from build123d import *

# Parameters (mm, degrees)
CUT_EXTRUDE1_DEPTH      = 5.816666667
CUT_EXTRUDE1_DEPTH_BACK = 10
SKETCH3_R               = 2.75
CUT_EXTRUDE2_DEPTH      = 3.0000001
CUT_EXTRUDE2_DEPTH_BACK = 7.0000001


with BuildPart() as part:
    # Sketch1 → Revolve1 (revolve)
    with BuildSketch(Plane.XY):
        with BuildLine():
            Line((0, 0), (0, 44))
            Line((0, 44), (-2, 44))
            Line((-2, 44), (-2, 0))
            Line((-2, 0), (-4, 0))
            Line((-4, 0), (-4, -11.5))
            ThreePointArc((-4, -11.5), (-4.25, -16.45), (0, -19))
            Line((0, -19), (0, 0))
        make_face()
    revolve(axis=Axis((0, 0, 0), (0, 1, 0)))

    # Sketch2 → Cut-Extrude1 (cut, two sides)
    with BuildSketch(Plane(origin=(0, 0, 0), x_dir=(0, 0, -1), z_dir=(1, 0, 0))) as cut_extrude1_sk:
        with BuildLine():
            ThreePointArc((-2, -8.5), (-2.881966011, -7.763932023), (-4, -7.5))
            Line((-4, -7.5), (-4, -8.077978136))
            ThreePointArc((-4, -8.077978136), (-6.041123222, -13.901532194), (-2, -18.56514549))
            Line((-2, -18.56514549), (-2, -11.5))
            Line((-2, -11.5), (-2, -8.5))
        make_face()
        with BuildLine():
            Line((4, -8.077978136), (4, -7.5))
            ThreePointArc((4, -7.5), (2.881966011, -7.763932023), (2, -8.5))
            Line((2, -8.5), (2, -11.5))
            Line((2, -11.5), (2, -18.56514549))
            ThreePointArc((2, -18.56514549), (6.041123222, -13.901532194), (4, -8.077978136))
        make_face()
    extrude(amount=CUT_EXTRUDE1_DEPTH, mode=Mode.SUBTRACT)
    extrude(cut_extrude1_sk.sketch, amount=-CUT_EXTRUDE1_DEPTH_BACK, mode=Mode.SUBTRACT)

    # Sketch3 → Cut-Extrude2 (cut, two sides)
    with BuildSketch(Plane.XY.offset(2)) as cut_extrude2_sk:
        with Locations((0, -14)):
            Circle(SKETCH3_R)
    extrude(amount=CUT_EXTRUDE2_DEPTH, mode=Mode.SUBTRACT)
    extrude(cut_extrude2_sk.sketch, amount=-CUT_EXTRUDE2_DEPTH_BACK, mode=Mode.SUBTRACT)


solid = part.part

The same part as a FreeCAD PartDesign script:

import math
import FreeCAD as App
import Part
import Sketcher

V = App.Vector
Q = App.Units.Quantity

doc = App.newDocument("Part")
body = doc.addObject("PartDesign::Body", "Body")

# Sketch on XY plane
sketch1 = body.newObject("Sketcher::SketchObject", "Sketch")
sketch1.AttachmentSupport = (doc.getObject("XY_Plane"), [""])
sketch1.MapMode = "FlatFace"
sketch1.addGeometry([
    Part.LineSegment(V(0, 44, 0), V(-2, 44, 0)),  # 0
    Part.LineSegment(V(-2, 44, 0), V(-2, 0, 0)),  # 1
    Part.LineSegment(V(-2, 0, 0), V(-4, 0, 0)),  # 2
    Part.LineSegment(V(-4, 0, 0), V(-4, -11.5, 0)),  # 3
    Part.ArcOfCircle(Part.Circle(V(0, -14.183333, 0), V(0, 0, 1), 4.816667), math.radians(146.144974), math.radians(270)),  # 4
    Part.LineSegment(V(0, -19, 0), V(0, 44, 0)),  # 5
], False)
sketch1.addConstraint([
    Sketcher.Constraint("Coincident", 0, 2, 1, 1),
    Sketcher.Constraint("Coincident", 1, 2, 2, 1),
    Sketcher.Constraint("Coincident", 2, 2, 3, 1),
    Sketcher.Constraint("Coincident", 3, 2, 4, 1),
    Sketcher.Constraint("Coincident", 4, 2, 5, 1),
    Sketcher.Constraint("Coincident", 5, 2, 0, 1),
    Sketcher.Constraint("Horizontal", 0),
    Sketcher.Constraint("Vertical", 1),
    Sketcher.Constraint("Horizontal", 2),
    Sketcher.Constraint("Vertical", 3),
    Sketcher.Constraint("Vertical", 5),
    Sketcher.Constraint("PointOnObject", 4, 3, -2),
    Sketcher.Constraint("PointOnObject", 1, 2, -1),
    Sketcher.Constraint("PointOnObject", 4, 2, -2),
    Sketcher.Constraint("Equal", 0, 2),
    Sketcher.Constraint("DistanceX", 0, 2, 0, 1, Q("2 mm")),
    Sketcher.Constraint("DistanceY", 1, 2, 1, 1, Q("44 mm")),
    Sketcher.Constraint("DistanceY", 5, 1, 5, 2, Q("63 mm")),
    Sketcher.Constraint("DistanceY", 3, 2, 3, 1, Q("11.5 mm")),
])
revolution = body.newObject("PartDesign::Revolution", "Revolution")
revolution.Profile = sketch1
revolution.ReferenceAxis = (sketch1, ["V_Axis"])
revolution.Angle = 360

# Sketch on YZ plane
sketch2 = body.newObject("Sketcher::SketchObject", "Sketch001")
sketch2.AttachmentSupport = (doc.getObject("YZ_Plane"), [""])
sketch2.MapMode = "FlatFace"
sketch2.addGeometry([
    Part.ArcOfCircle(Part.Circle(V(-10, 4, 0), V(0, 0, 1), 2.5), math.radians(-53.130102), math.radians(0)),  # 0
    Part.LineSegment(V(-7.5, 4, 0), V(-8.077978, 4, 0)),  # 1
    Part.ArcOfCircle(Part.Circle(V(-12.749434, 0, 0), V(0, 0, 1), 6.15), math.radians(40.572258), math.radians(161.022111)),  # 2
    Part.LineSegment(V(-18.565145, 2, 0), V(-8.5, 2, 0)),  # 3
    Part.LineSegment(V(-8.077978, -4, 0), V(-7.5, -4, 0)),  # 4
    Part.ArcOfCircle(Part.Circle(V(-10, -4, 0), V(0, 0, 1), 2.5), math.radians(0), math.radians(53.130102)),  # 5
    Part.LineSegment(V(-8.5, -2, 0), V(-18.565145, -2, 0)),  # 6
    Part.ArcOfCircle(Part.Circle(V(-12.749434, 0, 0), V(0, 0, 1), 6.15), math.radians(-161.022111), math.radians(-40.572258)),  # 7
], False)
sketch2.addConstraint([
    Sketcher.Constraint("Coincident", 0, 2, 1, 1),
    Sketcher.Constraint("Coincident", 1, 2, 2, 1),
    Sketcher.Constraint("Coincident", 2, 2, 3, 1),
    Sketcher.Constraint("Coincident", 3, 2, 0, 1),
    Sketcher.Constraint("Coincident", 4, 2, 5, 1),
    Sketcher.Constraint("Coincident", 5, 2, 6, 1),
    Sketcher.Constraint("Coincident", 6, 2, 7, 1),
    Sketcher.Constraint("Coincident", 7, 2, 4, 1),
    Sketcher.Constraint("Horizontal", 1),
    Sketcher.Constraint("Horizontal", 3),
    Sketcher.Constraint("Horizontal", 4),
    Sketcher.Constraint("Horizontal", 6),
    Sketcher.Constraint("Coincident", 7, 3, 2, 3),
    Sketcher.Constraint("Equal", 0, 5),
    Sketcher.Constraint("Equal", 2, 7),
    Sketcher.Constraint("Symmetric", 0, 3, 5, 3, -1),
    Sketcher.Constraint("Symmetric", 2, 2, 6, 2, -1),
    Sketcher.Constraint("Horizontal", 5, 3, 4, 2),
    Sketcher.Constraint("Vertical", 1, 2, 7, 2),
    Sketcher.Constraint("Radius", 0, Q("2.5 mm")),
    Sketcher.Constraint("Radius", 2, Q("6.15 mm")),
    Sketcher.Constraint("DistanceX", 0, 3, -1, 1, Q("10 mm")),
    Sketcher.Constraint("DistanceY", -1, 1, 0, 3, Q("4 mm")),
    Sketcher.Constraint("DistanceY", -1, 1, 2, 2, Q("2 mm")),
    Sketcher.Constraint("DistanceX", 1, 2, 1, 1, Q("0.577978 mm")),
])
pocket1 = body.newObject("PartDesign::Pocket", "Pocket")
pocket1.Profile = sketch2
pocket1.Type = "ThroughAll"
pocket1.Midplane = True

# Sketch on XY plane
sketch3 = body.newObject("Sketcher::SketchObject", "Sketch002")
sketch3.AttachmentSupport = (doc.getObject("XY_Plane"), [""])
sketch3.MapMode = "FlatFace"
sketch3.AttachmentOffset = App.Placement(V(0, 0, 2), App.Rotation())
sketch3.addGeometry(Part.Circle(V(0, -14, 0), V(0, 0, 1), 2.75), False)
sketch3.addConstraint([
    Sketcher.Constraint("PointOnObject", 0, 3, -2),
    Sketcher.Constraint("Diameter", 0, Q("5.5 mm")),
    Sketcher.Constraint("DistanceY", 0, 3, -1, 1, Q("14 mm")),
])
pocket2 = body.newObject("PartDesign::Pocket", "Pocket001")
pocket2.Profile = sketch3
pocket2.Type = "ThroughAll"
pocket2.Midplane = True

doc.recompute()
